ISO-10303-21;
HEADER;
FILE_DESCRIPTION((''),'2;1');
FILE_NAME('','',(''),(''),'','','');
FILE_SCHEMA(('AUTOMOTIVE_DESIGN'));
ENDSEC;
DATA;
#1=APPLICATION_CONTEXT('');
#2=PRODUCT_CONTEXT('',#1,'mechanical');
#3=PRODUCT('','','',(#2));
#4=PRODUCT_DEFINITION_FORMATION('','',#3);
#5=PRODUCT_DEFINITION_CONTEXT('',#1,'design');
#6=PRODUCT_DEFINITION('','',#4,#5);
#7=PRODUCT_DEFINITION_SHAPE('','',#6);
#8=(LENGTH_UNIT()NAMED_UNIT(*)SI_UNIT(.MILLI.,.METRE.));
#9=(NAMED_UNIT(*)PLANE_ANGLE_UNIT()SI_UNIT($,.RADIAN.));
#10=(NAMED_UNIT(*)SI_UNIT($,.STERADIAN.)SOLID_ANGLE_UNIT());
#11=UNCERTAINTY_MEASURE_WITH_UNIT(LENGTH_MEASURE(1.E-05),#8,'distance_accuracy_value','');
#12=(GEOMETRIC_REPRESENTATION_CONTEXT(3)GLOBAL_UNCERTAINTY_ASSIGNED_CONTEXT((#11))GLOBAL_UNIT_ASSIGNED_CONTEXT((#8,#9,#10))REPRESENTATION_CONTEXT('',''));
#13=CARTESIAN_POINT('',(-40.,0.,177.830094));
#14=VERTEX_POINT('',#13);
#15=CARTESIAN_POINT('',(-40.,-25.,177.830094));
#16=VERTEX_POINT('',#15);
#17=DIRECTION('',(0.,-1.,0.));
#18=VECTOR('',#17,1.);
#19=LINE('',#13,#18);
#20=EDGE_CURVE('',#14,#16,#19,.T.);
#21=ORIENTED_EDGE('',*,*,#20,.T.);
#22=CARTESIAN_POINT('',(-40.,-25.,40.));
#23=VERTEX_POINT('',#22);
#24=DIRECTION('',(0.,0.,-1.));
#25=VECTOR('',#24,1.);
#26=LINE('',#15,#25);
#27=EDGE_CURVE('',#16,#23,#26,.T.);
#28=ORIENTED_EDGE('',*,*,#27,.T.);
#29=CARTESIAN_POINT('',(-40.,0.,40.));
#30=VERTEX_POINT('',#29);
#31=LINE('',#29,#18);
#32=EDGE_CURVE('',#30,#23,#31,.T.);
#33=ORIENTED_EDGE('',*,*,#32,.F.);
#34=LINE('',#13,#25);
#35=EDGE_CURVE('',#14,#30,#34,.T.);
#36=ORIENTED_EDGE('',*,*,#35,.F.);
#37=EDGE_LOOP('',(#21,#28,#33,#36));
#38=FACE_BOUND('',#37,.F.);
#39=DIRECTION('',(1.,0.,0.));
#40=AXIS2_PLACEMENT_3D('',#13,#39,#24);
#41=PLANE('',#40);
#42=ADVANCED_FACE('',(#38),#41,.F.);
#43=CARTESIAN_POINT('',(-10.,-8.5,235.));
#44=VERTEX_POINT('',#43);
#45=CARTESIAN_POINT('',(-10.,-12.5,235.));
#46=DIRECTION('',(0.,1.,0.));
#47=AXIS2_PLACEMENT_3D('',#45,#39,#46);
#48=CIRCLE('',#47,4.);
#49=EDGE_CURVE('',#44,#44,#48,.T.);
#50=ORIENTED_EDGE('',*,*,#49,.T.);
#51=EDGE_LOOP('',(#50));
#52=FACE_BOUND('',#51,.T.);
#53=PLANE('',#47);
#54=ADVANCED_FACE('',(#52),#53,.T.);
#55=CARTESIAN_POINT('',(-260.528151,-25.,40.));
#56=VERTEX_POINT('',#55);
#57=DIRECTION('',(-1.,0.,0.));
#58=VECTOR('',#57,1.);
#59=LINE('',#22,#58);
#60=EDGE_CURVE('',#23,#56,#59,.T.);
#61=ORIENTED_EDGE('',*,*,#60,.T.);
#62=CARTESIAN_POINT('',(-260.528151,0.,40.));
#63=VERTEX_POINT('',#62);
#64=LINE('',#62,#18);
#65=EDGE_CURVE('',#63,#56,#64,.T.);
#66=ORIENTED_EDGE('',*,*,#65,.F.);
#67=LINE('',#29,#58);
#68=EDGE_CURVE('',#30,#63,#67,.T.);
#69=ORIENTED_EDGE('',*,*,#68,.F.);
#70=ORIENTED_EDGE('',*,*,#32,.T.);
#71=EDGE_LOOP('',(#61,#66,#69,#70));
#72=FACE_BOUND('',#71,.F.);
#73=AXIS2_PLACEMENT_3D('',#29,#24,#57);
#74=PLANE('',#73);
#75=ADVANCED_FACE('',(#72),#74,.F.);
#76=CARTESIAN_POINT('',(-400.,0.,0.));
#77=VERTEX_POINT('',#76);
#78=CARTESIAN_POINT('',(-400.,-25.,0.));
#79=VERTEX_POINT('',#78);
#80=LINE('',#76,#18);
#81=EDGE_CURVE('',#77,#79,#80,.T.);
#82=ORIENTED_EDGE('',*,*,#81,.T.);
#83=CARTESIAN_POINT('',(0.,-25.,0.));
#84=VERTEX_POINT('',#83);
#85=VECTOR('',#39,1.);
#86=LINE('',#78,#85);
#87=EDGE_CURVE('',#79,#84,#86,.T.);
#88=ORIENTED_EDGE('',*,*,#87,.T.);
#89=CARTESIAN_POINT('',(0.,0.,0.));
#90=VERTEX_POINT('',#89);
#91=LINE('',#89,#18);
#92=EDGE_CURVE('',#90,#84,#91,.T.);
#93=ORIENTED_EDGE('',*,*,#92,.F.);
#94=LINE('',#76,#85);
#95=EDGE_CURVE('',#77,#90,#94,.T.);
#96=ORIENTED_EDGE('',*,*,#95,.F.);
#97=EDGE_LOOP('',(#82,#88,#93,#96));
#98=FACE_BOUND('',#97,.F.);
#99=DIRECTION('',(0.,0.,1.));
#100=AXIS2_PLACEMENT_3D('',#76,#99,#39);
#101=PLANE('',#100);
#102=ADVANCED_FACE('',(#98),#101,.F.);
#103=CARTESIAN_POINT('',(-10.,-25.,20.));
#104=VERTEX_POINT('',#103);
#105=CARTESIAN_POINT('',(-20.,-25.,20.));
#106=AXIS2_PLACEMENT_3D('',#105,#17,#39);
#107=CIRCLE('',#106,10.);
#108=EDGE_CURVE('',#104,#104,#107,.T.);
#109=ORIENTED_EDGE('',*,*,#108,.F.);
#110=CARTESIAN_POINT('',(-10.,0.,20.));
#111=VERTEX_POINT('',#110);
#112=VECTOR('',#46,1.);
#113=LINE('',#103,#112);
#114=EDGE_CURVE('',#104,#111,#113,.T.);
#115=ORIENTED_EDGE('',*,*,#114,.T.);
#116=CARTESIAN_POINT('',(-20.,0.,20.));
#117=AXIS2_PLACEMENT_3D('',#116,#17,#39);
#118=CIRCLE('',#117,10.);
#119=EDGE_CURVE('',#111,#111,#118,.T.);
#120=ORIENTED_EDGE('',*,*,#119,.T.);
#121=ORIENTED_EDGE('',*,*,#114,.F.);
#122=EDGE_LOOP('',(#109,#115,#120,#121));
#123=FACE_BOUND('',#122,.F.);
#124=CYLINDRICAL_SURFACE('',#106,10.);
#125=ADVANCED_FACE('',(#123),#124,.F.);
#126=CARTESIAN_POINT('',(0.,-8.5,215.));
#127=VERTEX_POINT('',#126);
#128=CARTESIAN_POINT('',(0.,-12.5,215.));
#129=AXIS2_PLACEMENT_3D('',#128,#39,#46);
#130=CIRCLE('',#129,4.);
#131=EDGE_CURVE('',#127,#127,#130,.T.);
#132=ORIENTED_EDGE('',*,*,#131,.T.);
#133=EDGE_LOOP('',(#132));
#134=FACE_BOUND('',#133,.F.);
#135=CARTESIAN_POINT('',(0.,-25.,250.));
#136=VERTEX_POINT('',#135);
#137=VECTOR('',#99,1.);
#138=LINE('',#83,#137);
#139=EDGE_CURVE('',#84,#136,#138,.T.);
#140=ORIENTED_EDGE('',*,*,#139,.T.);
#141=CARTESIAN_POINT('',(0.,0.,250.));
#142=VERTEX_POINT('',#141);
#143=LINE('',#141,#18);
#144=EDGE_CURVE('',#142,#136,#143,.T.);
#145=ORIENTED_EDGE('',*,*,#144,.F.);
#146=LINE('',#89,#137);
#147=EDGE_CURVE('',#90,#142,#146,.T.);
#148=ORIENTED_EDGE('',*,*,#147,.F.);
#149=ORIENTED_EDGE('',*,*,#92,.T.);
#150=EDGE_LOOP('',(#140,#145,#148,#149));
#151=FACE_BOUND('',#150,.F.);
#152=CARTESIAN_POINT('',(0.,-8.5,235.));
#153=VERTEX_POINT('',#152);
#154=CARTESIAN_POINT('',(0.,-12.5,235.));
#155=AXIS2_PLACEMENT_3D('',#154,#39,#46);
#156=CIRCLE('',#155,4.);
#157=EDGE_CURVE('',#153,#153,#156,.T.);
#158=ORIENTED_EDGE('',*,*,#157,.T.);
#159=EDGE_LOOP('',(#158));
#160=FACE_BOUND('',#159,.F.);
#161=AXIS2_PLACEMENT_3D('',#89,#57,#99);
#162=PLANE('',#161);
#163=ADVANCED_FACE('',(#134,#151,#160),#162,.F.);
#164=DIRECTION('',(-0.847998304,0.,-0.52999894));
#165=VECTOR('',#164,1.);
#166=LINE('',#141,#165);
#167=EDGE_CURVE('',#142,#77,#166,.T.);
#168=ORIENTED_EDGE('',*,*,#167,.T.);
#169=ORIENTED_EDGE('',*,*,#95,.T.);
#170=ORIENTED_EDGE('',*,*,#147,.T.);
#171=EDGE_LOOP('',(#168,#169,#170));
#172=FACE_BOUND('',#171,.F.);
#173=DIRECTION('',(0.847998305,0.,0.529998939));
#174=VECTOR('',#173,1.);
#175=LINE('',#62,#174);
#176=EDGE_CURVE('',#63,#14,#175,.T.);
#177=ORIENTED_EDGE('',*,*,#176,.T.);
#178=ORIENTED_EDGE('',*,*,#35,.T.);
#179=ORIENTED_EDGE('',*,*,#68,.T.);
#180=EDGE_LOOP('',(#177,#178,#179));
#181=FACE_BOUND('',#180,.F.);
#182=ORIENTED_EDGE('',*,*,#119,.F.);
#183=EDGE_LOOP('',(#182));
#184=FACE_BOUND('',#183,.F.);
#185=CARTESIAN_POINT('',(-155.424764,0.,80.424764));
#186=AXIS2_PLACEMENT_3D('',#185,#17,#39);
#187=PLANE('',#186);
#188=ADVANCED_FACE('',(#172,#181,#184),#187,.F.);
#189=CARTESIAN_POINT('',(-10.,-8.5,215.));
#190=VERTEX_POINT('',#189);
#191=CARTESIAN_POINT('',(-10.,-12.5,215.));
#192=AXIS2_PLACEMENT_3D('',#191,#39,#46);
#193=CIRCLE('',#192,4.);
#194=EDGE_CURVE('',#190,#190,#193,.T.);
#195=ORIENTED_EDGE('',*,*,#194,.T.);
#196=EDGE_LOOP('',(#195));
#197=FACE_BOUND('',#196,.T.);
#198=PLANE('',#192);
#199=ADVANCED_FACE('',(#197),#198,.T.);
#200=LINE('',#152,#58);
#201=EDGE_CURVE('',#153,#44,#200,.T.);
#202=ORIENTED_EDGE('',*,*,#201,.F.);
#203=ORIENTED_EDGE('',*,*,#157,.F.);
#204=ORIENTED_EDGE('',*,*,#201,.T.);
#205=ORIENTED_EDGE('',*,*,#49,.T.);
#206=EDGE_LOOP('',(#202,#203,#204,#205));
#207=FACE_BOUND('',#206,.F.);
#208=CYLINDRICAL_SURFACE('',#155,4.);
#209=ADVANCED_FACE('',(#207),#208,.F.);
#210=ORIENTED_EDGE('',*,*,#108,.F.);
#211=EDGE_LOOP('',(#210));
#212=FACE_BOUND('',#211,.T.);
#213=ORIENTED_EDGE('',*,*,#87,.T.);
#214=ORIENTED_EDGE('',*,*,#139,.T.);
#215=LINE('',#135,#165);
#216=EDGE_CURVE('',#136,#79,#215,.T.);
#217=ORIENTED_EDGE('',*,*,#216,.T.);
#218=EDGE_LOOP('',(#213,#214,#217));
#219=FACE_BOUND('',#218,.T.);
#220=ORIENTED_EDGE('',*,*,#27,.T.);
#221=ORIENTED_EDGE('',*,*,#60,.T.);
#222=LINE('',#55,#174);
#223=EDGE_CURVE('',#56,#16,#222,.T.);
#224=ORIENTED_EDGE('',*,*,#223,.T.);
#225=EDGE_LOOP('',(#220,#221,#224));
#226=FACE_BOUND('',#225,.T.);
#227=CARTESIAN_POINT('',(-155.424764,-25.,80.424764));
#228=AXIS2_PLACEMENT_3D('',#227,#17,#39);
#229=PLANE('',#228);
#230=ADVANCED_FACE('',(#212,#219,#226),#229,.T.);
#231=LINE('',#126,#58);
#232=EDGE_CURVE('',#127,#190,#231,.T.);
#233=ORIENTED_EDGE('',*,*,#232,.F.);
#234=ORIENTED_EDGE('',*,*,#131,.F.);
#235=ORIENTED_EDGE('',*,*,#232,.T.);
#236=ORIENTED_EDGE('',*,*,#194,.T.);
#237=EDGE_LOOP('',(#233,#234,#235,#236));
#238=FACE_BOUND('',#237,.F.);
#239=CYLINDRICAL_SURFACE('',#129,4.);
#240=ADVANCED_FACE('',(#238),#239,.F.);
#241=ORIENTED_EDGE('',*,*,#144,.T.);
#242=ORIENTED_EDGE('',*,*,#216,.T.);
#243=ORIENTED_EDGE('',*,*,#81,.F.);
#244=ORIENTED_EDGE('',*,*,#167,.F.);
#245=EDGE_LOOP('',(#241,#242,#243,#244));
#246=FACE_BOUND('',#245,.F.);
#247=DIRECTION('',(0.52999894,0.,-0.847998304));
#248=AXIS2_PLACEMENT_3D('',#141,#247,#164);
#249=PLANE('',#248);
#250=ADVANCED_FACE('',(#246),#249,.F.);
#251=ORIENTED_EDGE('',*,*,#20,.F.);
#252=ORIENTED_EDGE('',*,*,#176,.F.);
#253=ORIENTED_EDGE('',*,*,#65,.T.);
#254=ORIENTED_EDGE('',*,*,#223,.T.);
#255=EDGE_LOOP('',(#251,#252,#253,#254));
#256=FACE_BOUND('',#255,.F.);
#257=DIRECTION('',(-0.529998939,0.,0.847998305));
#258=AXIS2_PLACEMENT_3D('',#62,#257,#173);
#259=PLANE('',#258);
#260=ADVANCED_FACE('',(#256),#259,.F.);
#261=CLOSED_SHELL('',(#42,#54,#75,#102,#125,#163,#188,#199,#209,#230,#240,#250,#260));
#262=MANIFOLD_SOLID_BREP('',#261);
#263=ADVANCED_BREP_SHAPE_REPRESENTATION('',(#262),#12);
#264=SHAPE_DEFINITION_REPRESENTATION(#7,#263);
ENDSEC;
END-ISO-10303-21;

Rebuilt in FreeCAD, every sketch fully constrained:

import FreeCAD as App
import Part
import Sketcher

V = App.Vector
Q = App.Units.Quantity


def add_polygon(sketch, points):
    """Adds a closed chain of lines whose ends are joined by coincident constraints."""
    first, n = sketch.GeometryCount, len(points)
    for a, b in zip(points, points[1:] + points[:1]):
        sketch.addGeometry(Part.LineSegment(App.Vector(*a, 0), App.Vector(*b, 0)), False)
    for i in range(n):
        sketch.addConstraint(Sketcher.Constraint("Coincident", first + i, 2, first + (i + 1) % n, 1))

doc = App.newDocument("Part")
body = doc.addObject("PartDesign::Body", "Body")

sketch1 = body.newObject("Sketcher::SketchObject", "Sketch")
sketch1.AttachmentSupport = (doc.getObject("XZ_Plane"), [""])
sketch1.MapMode = "FlatFace"
add_polygon(sketch1, [(-400, 0), (0, 0), (0, 250)])
add_polygon(sketch1, [(-40, 40), (-261, 40), (-40, 178)])
sketch1.addConstraint([
    Sketcher.Constraint("Horizontal", 0),
    Sketcher.Constraint("Vertical", 1),
    Sketcher.Constraint("Horizontal", 3),
    Sketcher.Constraint("Vertical", 5),
    Sketcher.Constraint("Coincident", 0, 2, -1, 1),
    Sketcher.Constraint("Parallel", 2, 4),
    Sketcher.Constraint("DistanceX", 0, 1, 0, 2, Q("400 mm")),
    Sketcher.Constraint("DistanceY", 1, 1, 1, 2, Q("250 mm")),
    Sketcher.Constraint("DistanceY", -1, 1, 3, 2, Q("40 mm")),
    Sketcher.Constraint("DistanceX", 4, 2, -1, 1, Q("40 mm")),
    Sketcher.Constraint("Distance", 4, Q("260.057302 mm")),
])
pad1 = body.newObject("PartDesign::Pad", "Pad")
pad1.Profile = sketch1
pad1.Length = 25

sketch2 = body.newObject("Sketcher::SketchObject", "Sketch001")
sketch2.AttachmentSupport = (doc.getObject("YZ_Plane"), [""])
sketch2.MapMode = "FlatFace"
sketch2.addGeometry([
    Part.Circle(V(-12.5, 235, 0), V(0, 0, 1), 4),
    Part.Circle(V(-12.5, 215, 0), V(0, 0, 1), 4),
], False)
sketch2.addConstraint([
    Sketcher.Constraint("Equal", 0, 1),
    Sketcher.Constraint("Vertical", 0, 3, 1, 3),
    Sketcher.Constraint("Diameter", 0, Q("8 mm")),
    Sketcher.Constraint("DistanceY", -1, 1, 0, 3, Q("235 mm")),
    Sketcher.Constraint("DistanceY", -1, 1, 1, 3, Q("215 mm")),
    Sketcher.Constraint("DistanceX", 0, 3, -1, 1, Q("12.5 mm")),
])
pocket1 = body.newObject("PartDesign::Pocket", "Pocket")
pocket1.Profile = sketch2
pocket1.Length = 10

sketch3 = body.newObject("Sketcher::SketchObject", "Sketch002")
sketch3.AttachmentSupport = (doc.getObject("XZ_Plane"), [""])
sketch3.MapMode = "FlatFace"
sketch3.AttachmentOffset = App.Placement(V(0, 0, 25), App.Rotation())
sketch3.addGeometry(Part.Circle(V(-20, 20, 0), V(0, 0, 1), 10), False)
sketch3.addConstraint([
    Sketcher.Constraint("Diameter", 0, Q("20 mm")),
    Sketcher.Constraint("DistanceX", 0, 3, -1, 1, Q("20 mm")),
    Sketcher.Constraint("DistanceY", -1, 1, 0, 3, Q("20 mm")),
])
pocket2 = body.newObject("PartDesign::Pocket", "Pocket001")
pocket2.Profile = sketch3
pocket2.Type = "ThroughAll"

doc.recompute()
